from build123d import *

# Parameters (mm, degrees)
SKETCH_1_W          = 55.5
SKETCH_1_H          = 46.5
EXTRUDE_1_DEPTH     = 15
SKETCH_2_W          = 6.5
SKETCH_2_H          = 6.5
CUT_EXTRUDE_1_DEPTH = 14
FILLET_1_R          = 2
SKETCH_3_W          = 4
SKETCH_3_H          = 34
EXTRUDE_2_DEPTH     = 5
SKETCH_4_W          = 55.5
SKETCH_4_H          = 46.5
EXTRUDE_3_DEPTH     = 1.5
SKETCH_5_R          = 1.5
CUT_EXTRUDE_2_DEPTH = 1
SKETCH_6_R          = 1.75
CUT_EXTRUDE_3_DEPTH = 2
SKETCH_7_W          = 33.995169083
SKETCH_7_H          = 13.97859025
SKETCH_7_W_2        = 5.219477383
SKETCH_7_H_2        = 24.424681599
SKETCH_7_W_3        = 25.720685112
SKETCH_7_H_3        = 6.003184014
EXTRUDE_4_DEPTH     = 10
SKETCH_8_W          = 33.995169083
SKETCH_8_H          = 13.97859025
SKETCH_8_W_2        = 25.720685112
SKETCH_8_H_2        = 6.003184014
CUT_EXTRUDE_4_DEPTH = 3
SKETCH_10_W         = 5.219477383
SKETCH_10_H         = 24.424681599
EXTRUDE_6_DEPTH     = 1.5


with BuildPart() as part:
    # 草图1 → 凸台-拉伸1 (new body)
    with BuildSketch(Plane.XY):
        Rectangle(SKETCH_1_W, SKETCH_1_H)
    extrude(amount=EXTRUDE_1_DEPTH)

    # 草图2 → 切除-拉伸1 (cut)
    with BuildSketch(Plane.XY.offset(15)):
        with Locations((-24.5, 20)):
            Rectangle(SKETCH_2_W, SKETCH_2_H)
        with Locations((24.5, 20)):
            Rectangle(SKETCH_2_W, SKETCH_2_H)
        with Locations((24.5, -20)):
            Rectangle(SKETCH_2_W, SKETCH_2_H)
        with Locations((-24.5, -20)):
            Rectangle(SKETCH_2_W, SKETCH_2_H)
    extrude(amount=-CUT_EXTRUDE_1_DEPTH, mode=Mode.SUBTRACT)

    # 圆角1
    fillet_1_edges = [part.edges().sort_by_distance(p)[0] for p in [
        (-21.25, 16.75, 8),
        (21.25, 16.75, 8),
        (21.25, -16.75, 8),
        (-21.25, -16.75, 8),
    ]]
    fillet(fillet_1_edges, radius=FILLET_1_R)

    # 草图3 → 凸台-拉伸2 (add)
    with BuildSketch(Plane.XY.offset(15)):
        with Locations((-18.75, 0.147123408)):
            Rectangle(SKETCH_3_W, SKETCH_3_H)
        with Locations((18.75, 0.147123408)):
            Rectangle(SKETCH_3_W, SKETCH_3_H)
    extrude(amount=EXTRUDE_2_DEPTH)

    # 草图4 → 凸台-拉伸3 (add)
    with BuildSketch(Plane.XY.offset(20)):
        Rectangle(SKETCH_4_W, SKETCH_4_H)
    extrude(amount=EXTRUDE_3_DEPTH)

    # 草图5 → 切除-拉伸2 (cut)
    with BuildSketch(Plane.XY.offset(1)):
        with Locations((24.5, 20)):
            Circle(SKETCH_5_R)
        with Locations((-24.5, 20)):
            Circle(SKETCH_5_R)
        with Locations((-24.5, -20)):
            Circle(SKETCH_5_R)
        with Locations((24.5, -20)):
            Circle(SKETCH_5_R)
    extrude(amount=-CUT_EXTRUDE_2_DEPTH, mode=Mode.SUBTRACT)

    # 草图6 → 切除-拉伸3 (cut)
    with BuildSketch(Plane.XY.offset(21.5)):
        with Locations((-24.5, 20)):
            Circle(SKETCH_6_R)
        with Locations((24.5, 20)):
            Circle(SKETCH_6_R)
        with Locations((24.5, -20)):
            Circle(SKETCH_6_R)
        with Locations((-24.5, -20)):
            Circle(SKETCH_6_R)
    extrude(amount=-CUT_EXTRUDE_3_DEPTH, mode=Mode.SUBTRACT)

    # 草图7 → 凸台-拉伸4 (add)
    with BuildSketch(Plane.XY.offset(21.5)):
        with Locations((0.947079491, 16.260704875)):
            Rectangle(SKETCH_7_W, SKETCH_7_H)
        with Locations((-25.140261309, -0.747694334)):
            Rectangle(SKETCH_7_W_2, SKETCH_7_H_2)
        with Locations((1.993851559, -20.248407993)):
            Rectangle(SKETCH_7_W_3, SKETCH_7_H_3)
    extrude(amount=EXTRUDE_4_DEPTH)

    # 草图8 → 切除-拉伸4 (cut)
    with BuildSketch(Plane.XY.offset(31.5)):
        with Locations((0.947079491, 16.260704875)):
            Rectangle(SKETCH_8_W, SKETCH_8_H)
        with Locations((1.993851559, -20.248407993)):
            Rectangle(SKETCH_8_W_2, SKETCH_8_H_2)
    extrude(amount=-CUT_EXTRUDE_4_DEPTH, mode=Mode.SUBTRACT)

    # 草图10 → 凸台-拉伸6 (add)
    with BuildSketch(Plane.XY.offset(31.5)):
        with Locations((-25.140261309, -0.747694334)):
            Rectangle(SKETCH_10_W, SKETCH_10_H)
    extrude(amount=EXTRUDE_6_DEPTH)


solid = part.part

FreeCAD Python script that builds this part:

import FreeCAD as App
import Part
import Sketcher
from FreeCAD import Vector
Q = App.Units.Quantity


def edges_at(feature, points):
    """Names of the edges that pass closest to the given points."""
    edges = feature.Shape.Edges
    near = lambda p: min(range(len(edges)), key=lambda i: edges[i].distToShape(Part.Vertex(*p))[0])
    return sorted({f"Edge{near(p) + 1}" for p in points})


def add_polygon(sketch, points):
    """Adds a closed chain of lines whose ends are joined by coincident constraints."""
    first, n = sketch.GeometryCount, len(points)
    for a, b in zip(points, points[1:] + points[:1]):
        sketch.addGeometry(Part.LineSegment(App.Vector(*a, 0), App.Vector(*b, 0)), False)
    for i in range(n):
        sketch.addConstraint(Sketcher.Constraint("Coincident", first + i, 2, first + (i + 1) % n, 1))

doc = App.newDocument("Part")
body = doc.addObject("PartDesign::Body", "Body")

# Sketch on XY plane
sketch1 = body.newObject("Sketcher::SketchObject", "Sketch")
sketch1.AttachmentSupport = (doc.getObject("XY_Plane"), [""])
sketch1.MapMode = "FlatFace"
add_polygon(sketch1, [(-28, 23), (-28, -23), (28, -23), (28, 23)])  # lines 0-3
sketch1.addConstraint([
    Sketcher.Constraint("Vertical", 0),
    Sketcher.Constraint("Horizontal", 1),
    Sketcher.Constraint("Vertical", 2),
    Sketcher.Constraint("Horizontal", 3),
    Sketcher.Constraint("Symmetric", 0, 2, 2, 2, -1, 1),
    Sketcher.Constraint("DistanceX", 1, 1, 1, 2, Q("55.5 mm")),
    Sketcher.Constraint("DistanceY", 0, 2, 0, 1, Q("46.5 mm")),
])
pad1 = body.newObject("PartDesign::Pad", "Pad")
pad1.Profile = sketch1
pad1.Length = 15

# Sketch on XY plane
sketch2 = body.newObject("Sketcher::SketchObject", "Sketch001")
sketch2.AttachmentSupport = (doc.getObject("XY_Plane"), [""])
sketch2.MapMode = "FlatFace"
sketch2.AttachmentOffset = App.Placement(Vector(0, 0, 15), App.Rotation())
add_polygon(sketch2, [(-28, 23), (-28, 17), (-21, 17), (-21, 23)])  # lines 0-3
add_polygon(sketch2, [(21, 23), (21, 17), (28, 17), (28, 23)])  # lines 4-7
add_polygon(sketch2, [(21, -17), (21, -23), (28, -23), (28, -17)])  # lines 8-11
add_polygon(sketch2, [(-28, -17), (-28, -23), (-21, -23), (-21, -17)])  # lines 12-15
sketch2.addConstraint([
    Sketcher.Constraint("Vertical", 0),
    Sketcher.Constraint("Horizontal", 1),
    Sketcher.Constraint("Vertical", 2),
    Sketcher.Constraint("Horizontal", 3),
    Sketcher.Constraint("Vertical", 4),
    Sketcher.Constraint("Horizontal", 5),
    Sketcher.Constraint("Vertical", 6),
    Sketcher.Constraint("Horizontal", 7),
    Sketcher.Constraint("Vertical", 8),
    Sketcher.Constraint("Horizontal", 9),
    Sketcher.Constraint("Vertical", 10),
    Sketcher.Constraint("Horizontal", 11),
    Sketcher.Constraint("Vertical", 12),
    Sketcher.Constraint("Horizontal", 13),
    Sketcher.Constraint("Vertical", 14),
    Sketcher.Constraint("Horizontal", 15),
    Sketcher.Constraint("Symmetric", 2, 2, 8, 2, -1, 1),
    Sketcher.Constraint("Symmetric", 0, 2, 10, 2, -1, 1),
    Sketcher.Constraint("Symmetric", 6, 2, 12, 2, -1, 1),
    Sketcher.Constraint("Symmetric", 4, 2, 14, 2, -1, 1),
    Sketcher.Constraint("Symmetric", 1, 2, 4, 2, -2),
    Sketcher.Constraint("Symmetric", 3, 2, 6, 2, -2),
    Sketcher.Constraint("Equal", 15, 0),
    Sketcher.Constraint("DistanceX", 1, 1, 1, 2, Q("6.5 mm")),
    Sketcher.Constraint("DistanceX", 0, 2, 4, 2, Q("49 mm")),
    Sketcher.Constraint("DistanceY", 8, 2, 4, 2, Q("40 mm")),
])
pocket1 = body.newObject("PartDesign::Pocket", "Pocket")
pocket1.Profile = sketch2
pocket1.Length = 14
doc.recompute()

fillet = body.newObject("PartDesign::Fillet", "Fillet")
fillet.Base = (pocket1, edges_at(pocket1, [
    (-21.25, 16.75, 8),
    (21.25, 16.75, 8),
    (21.25, -16.75, 8),
    (-21.25, -16.75, 8),
]))
fillet.Radius = 2

# Sketch on XY plane
sketch3 = body.newObject("Sketcher::SketchObject", "Sketch002")
sketch3.AttachmentSupport = (doc.getObject("XY_Plane"), [""])
sketch3.MapMode = "FlatFace"
sketch3.AttachmentOffset = App.Placement(Vector(0, 0, 15), App.Rotation())
add_polygon(sketch3, [(-20.8, 17.1), (-20.8, -16.9), (-16.8, -16.9), (-16.8, 17.1)])  # lines 0-3
add_polygon(sketch3, [(16.8, 17.1), (16.8, -16.9), (20.8, -16.9), (20.8, 17.1)])  # lines 4-7
sketch3.addConstraint([
    Sketcher.Constraint("Vertical", 0),
    Sketcher.Constraint("Horizontal", 1),
    Sketcher.Constraint("Vertical", 2),
    Sketcher.Constraint("Horizontal", 3),
    Sketcher.Constraint("Vertical", 4),
    Sketcher.Constraint("Horizontal", 5),
    Sketcher.Constraint("Vertical", 6),
    Sketcher.Constraint("Horizontal", 7),
    Sketcher.Constraint("Symmetric", 1, 2, 4, 2, -2),
    Sketcher.Constraint("Symmetric", 3, 2, 6, 2, -2),
    Sketcher.Constraint("DistanceX", 1, 1, 1, 2, Q("4 mm")),
    Sketcher.Constraint("DistanceY", 0, 2, 0, 1, Q("34 mm")),
    Sketcher.Constraint("DistanceX", 1, 2, 4, 2, Q("33.5 mm")),
    Sketcher.Constraint("DistanceY", 0, 2, -1, 1, Q("16.852877 mm")),
])
pad2 = body.newObject("PartDesign::Pad", "Pad001")
pad2.Profile = sketch3
pad2.Length = 5

# Sketch on XY plane
sketch4 = body.newObject("Sketcher::SketchObject", "Sketch003")
sketch4.AttachmentSupport = (doc.getObject("XY_Plane"), [""])
sketch4.MapMode = "FlatFace"
sketch4.AttachmentOffset = App.Placement(Vector(0, 0, 20), App.Rotation())
add_polygon(sketch4, [(-28, 23), (-28, -23), (28, -23), (28, 23)])  # lines 0-3
sketch4.addConstraint([
    Sketcher.Constraint("Vertical", 0),
    Sketcher.Constraint("Horizontal", 1),
    Sketcher.Constraint("Vertical", 2),
    Sketcher.Constraint("Horizontal", 3),
    Sketcher.Constraint("Symmetric", 0, 2, 2, 2, -1, 1),
    Sketcher.Constraint("DistanceX", 1, 1, 1, 2, Q("55.5 mm")),
    Sketcher.Constraint("DistanceY", 0, 2, 0, 1, Q("46.5 mm")),
])
pad3 = body.newObject("PartDesign::Pad", "Pad002")
pad3.Profile = sketch4
pad3.Length = 1.5

# Sketch on XY plane
sketch5 = body.newObject("Sketcher::SketchObject", "Sketch004")
sketch5.AttachmentSupport = (doc.getObject("XY_Plane"), [""])
sketch5.MapMode = "FlatFace"
sketch5.AttachmentOffset = App.Placement(Vector(0, 0, 1), App.Rotation())
sketch5.addGeometry([
    Part.Circle(Vector(24.5, 20, 0), Vector(0, 0, 1), 1.5),
    Part.Circle(Vector(-24.5, 20, 0), Vector(0, 0, 1), 1.5),
    Part.Circle(Vector(-24.5, -20, 0), Vector(0, 0, 1), 1.5),
    Part.Circle(Vector(24.5, -20, 0), Vector(0, 0, 1), 1.5),
], False)
sketch5.addConstraint([
    Sketcher.Constraint("Equal", 0, 1),
    Sketcher.Constraint("Equal", 1, 2),
    Sketcher.Constraint("Equal", 2, 3),
    Sketcher.Constraint("Symmetric", 0, 3, 2, 3, -1, 1),
    Sketcher.Constraint("Symmetric", 1, 3, 3, 3, -1, 1),
    Sketcher.Constraint("Symmetric", 0, 3, 1, 3, -2),
    Sketcher.Constraint("Diameter", 0, Q("3 mm")),
    Sketcher.Constraint("DistanceY", -1, 1, 0, 3, Q("20 mm")),
    Sketcher.Constraint("DistanceX", 1, 3, 0, 3, Q("49 mm")),
])
pocket2 = body.newObject("PartDesign::Pocket", "Pocket001")
pocket2.Profile = sketch5
pocket2.Length = 1

# Sketch on XY plane
sketch6 = body.newObject("Sketcher::SketchObject", "Sketch005")
sketch6.AttachmentSupport = (doc.getObject("XY_Plane"), [""])
sketch6.MapMode = "FlatFace"
sketch6.AttachmentOffset = App.Placement(Vector(0, 0, 21.5), App.Rotation())
sketch6.addGeometry([
    Part.Circle(Vector(-24.5, 20, 0), Vector(0, 0, 1), 1.8),
    Part.Circle(Vector(24.5, 20, 0), Vector(0, 0, 1), 1.8),
    Part.Circle(Vector(24.5, -20, 0), Vector(0, 0, 1), 1.8),
    Part.Circle(Vector(-24.5, -20, 0), Vector(0, 0, 1), 1.8),
], False)
sketch6.addConstraint([
    Sketcher.Constraint("Equal", 0, 1),
    Sketcher.Constraint("Equal", 1, 2),
    Sketcher.Constraint("Equal", 2, 3),
    Sketcher.Constraint("Symmetric", 0, 3, 2, 3, -1, 1),
    Sketcher.Constraint("Symmetric", 1, 3, 3, 3, -1, 1),
    Sketcher.Constraint("Symmetric", 0, 3, 1, 3, -2),
    Sketcher.Constraint("Diameter", 0, Q("3.5 mm")),
    Sketcher.Constraint("DistanceY", -1, 1, 0, 3, Q("20 mm")),
    Sketcher.Constraint("DistanceX", 0, 3, 1, 3, Q("49 mm")),
])
pocket3 = body.newObject("PartDesign::Pocket", "Pocket002")
pocket3.Profile = sketch6
pocket3.Length = 2

# Sketch on XY plane
sketch7 = body.newObject("Sketcher::SketchObject", "Sketch006")
sketch7.AttachmentSupport = (doc.getObject("XY_Plane"), [""])
sketch7.MapMode = "FlatFace"
sketch7.AttachmentOffset = App.Placement(Vector(0, 0, 21.5), App.Rotation())
add_polygon(sketch7, [(-16, 23), (-16, 9), (18, 9), (18, 23)])  # lines 0-3
add_polygon(sketch7, [(-28, 11), (-28, -13), (-23, -13), (-23, 11)])  # lines 4-7
add_polygon(sketch7, [(-11, -17), (-11, -23), (15, -23), (15, -17)])  # lines 8-11
sketch7.addConstraint([
    Sketcher.Constraint("Vertical", 0),
    Sketcher.Constraint("Horizontal", 1),
    Sketcher.Constraint("Vertical", 2),
    Sketcher.Constraint("Horizontal", 3),
    Sketcher.Constraint("Vertical", 4),
    Sketcher.Constraint("Horizontal", 5),
    Sketcher.Constraint("Vertical", 6),
    Sketcher.Constraint("Horizontal", 7),
    Sketcher.Constraint("Vertical", 8),
    Sketcher.Constraint("Horizontal", 9),
    Sketcher.Constraint("Vertical", 10),
    Sketcher.Constraint("Horizontal", 11),
    Sketcher.Constraint("DistanceY", -1, 1, 2, 2, Q("23.25 mm")),
    Sketcher.Constraint("DistanceX", 4, 2, -1, 1, Q("27.75 mm")),
    Sketcher.Constraint("DistanceY", 8, 2, -1, 1, Q("23.25 mm")),
    Sketcher.Constraint("DistanceX", 1, 1, 1, 2, Q("33.995169 mm")),
    Sketcher.Constraint("DistanceY", 0, 2, 0, 1, Q("13.97859 mm")),
    Sketcher.Constraint("DistanceY", 4, 2, 4, 1, Q("24.424682 mm")),
    Sketcher.Constraint("DistanceX", 0, 2, 9, 2, Q("30.904699 mm")),
    Sketcher.Constraint("DistanceX", 5, 1, 5, 2, Q("5.219477 mm")),
    Sketcher.Constraint("DistanceX", 9, 1, 9, 2, Q("25.720685 mm")),
    Sketcher.Constraint("DistanceY", 8, 2, 8, 1, Q("6.003184 mm")),
    Sketcher.Constraint("DistanceX", 8, 2, -1, 1, Q("10.866491 mm")),
    Sketcher.Constraint("DistanceY", 10, 2, 5, 2, Q("4.286781 mm")),
])
pad4 = body.newObject("PartDesign::Pad", "Pad003")
pad4.Profile = sketch7
pad4.Length = 10

# Sketch on XY plane
sketch8 = body.newObject("Sketcher::SketchObject", "Sketch007")
sketch8.AttachmentSupport = (doc.getObject("XY_Plane"), [""])
sketch8.MapMode = "FlatFace"
sketch8.AttachmentOffset = App.Placement(Vector(0, 0, 31.5), App.Rotation())
add_polygon(sketch8, [(-16, 23), (-16, 9), (18, 9), (18, 23)])  # lines 0-3
add_polygon(sketch8, [(-11, -17), (-11, -23), (15, -23), (15, -17)])  # lines 4-7
sketch8.addConstraint([
    Sketcher.Constraint("Vertical", 0),
    Sketcher.Constraint("Horizontal", 1),
    Sketcher.Constraint("Vertical", 2),
    Sketcher.Constraint("Horizontal", 3),
    Sketcher.Constraint("Vertical", 4),
    Sketcher.Constraint("Horizontal", 5),
    Sketcher.Constraint("Vertical", 6),
    Sketcher.Constraint("Horizontal", 7),
    Sketcher.Constraint("DistanceY", 4, 2, 3, 2, Q("46.5 mm")),
    Sketcher.Constraint("DistanceY", -1, 1, 2, 2, Q("23.25 mm")),
    Sketcher.Constraint("DistanceX", 1, 1, 1, 2, Q("33.995169 mm")),
    Sketcher.Constraint("DistanceY", 0, 2, 0, 1, Q("13.97859 mm")),
    Sketcher.Constraint("DistanceX", 0, 2, 5, 2, Q("30.904699 mm")),
    Sketcher.Constraint("DistanceX", 5, 1, 5, 2, Q("25.720685 mm")),
    Sketcher.Constraint("DistanceY", 4, 2, 4, 1, Q("6.003184 mm")),
    Sketcher.Constraint("DistanceX", 4, 2, -1, 1, Q("10.866491 mm")),
])
pocket4 = body.newObject("PartDesign::Pocket", "Pocket003")
pocket4.Profile = sketch8
pocket4.Length = 3

# Sketch on XY plane
sketch9 = body.newObject("Sketcher::SketchObject", "Sketch008")
sketch9.AttachmentSupport = (doc.getObject("XY_Plane"), [""])
sketch9.MapMode = "FlatFace"
sketch9.AttachmentOffset = App.Placement(Vector(0, 0, 31.5), App.Rotation())
add_polygon(sketch9, [(-28, 11), (-28, -13), (-23, -13), (-23, 11)])  # lines 0-3
sketch9.addConstraint([
    Sketcher.Constraint("Vertical", 0),
    Sketcher.Constraint("Horizontal", 1),
    Sketcher.Constraint("Vertical", 2),
    Sketcher.Constraint("Horizontal", 3),
    Sketcher.Constraint("DistanceX", 0, 2, -1, 1, Q("27.75 mm")),
    Sketcher.Constraint("DistanceY", 0, 2, 0, 1, Q("24.424682 mm")),
    Sketcher.Constraint("DistanceX", 1, 1, 1, 2, Q("5.219477 mm")),
    Sketcher.Constraint("DistanceY", 0, 2, -1, 1, Q("12.960035 mm")),
])
pad5 = body.newObject("PartDesign::Pad", "Pad004")
pad5.Profile = sketch9
pad5.Length = 1.5

doc.recompute()
